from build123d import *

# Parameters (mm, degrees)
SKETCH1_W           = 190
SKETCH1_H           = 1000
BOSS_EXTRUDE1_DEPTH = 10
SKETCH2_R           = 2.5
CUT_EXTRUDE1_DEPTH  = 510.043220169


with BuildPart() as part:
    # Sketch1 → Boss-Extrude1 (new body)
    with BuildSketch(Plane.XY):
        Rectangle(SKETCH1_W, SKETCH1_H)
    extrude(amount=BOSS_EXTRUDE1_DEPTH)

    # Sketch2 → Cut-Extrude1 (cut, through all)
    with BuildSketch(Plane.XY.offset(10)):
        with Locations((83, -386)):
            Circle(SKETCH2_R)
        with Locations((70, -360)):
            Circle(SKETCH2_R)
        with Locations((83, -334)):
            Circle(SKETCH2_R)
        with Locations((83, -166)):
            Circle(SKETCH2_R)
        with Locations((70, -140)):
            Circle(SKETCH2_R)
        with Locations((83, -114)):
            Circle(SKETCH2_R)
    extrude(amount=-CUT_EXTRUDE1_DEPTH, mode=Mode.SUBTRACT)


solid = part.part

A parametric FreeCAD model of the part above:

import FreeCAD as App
import Part
import Sketcher
from FreeCAD import Vector
Q = App.Units.Quantity

doc = App.newDocument("Part")
params = doc.addObject("Spreadsheet::Sheet", "Params")
for row, (alias, value) in enumerate([
    ("sketch1_width", "190 mm"),
    ("sketch1_height", "1000 mm"),
    ("pad1_length", "10 mm"),
    ("sketch2_diameter", "5 mm"),
], start=1):
    params.set(f"A{row}", alias)
    params.set(f"B{row}", "=" + value)
    params.setAlias(f"B{row}", alias)

body = doc.addObject("PartDesign::Body", "Body")

# Sketch on XY plane
sketch1 = doc.addObject("Sketcher::SketchObject", "Sketch")
body.addObject(sketch1)
sketch1.AttachmentSupport = (doc.XY_Plane, [""])
sketch1.MapMode = "FlatFace"
sketch1.addGeometry(Part.LineSegment(Vector(-95, 500, 0), Vector(-95, -500, 0)), False)
sketch1.addGeometry(Part.LineSegment(Vector(-95, -500, 0), Vector(95, -500, 0)), False)
sketch1.addGeometry(Part.LineSegment(Vector(95, -500, 0), Vector(95, 500, 0)), False)
sketch1.addGeometry(Part.LineSegment(Vector(95, 500, 0), Vector(-95, 500, 0)), False)
sketch1.addConstraint(Sketcher.Constraint("Coincident", 0, 2, 1, 1))
sketch1.addConstraint(Sketcher.Constraint("Coincident", 1, 2, 2, 1))
sketch1.addConstraint(Sketcher.Constraint("Coincident", 2, 2, 3, 1))
sketch1.addConstraint(Sketcher.Constraint("Coincident", 3, 2, 0, 1))
sketch1.addConstraint(Sketcher.Constraint("Vertical", 0))
sketch1.addConstraint(Sketcher.Constraint("Horizontal", 1))
sketch1.addConstraint(Sketcher.Constraint("Vertical", 2))
sketch1.addConstraint(Sketcher.Constraint("Horizontal", 3))
sketch1.addConstraint(Sketcher.Constraint("Symmetric", 0, 2, 2, 2, -1, 1))
sketch1.addConstraint(Sketcher.Constraint("DistanceX", 1, 1, 1, 2, Q("190 mm")))
sketch1.addConstraint(Sketcher.Constraint("DistanceY", 0, 2, 0, 1, Q("1000 mm")))
sketch1.setExpression("Constraints[9]", "Params.sketch1_width")
sketch1.setExpression("Constraints[10]", "Params.sketch1_height")
pad1 = doc.addObject("PartDesign::Pad", "Pad")
body.addObject(pad1)
pad1.Profile = sketch1
pad1.setExpression("Length", "Params.pad1_length")

# Sketch on XY plane
sketch2 = doc.addObject("Sketcher::SketchObject", "Sketch001")
body.addObject(sketch2)
sketch2.AttachmentSupport = (doc.XY_Plane, [""])
sketch2.MapMode = "FlatFace"
sketch2.AttachmentOffset = App.Placement(Vector(0, 0, 10), App.Rotation())
sketch2.addGeometry(Part.Circle(Vector(83, -386, 0), Vector(0, 0, 1), 2.5), False)
sketch2.addGeometry(Part.Circle(Vector(70, -360, 0), Vector(0, 0, 1), 2.5), False)
sketch2.addGeometry(Part.Circle(Vector(83, -334, 0), Vector(0, 0, 1), 2.5), False)
sketch2.addGeometry(Part.Circle(Vector(83, -166, 0), Vector(0, 0, 1), 2.5), False)
sketch2.addGeometry(Part.Circle(Vector(70, -140, 0), Vector(0, 0, 1), 2.5), False)
sketch2.addGeometry(Part.Circle(Vector(83, -114, 0), Vector(0, 0, 1), 2.5), False)
sketch2.addConstraint(Sketcher.Constraint("Equal", 0, 1))
sketch2.addConstraint(Sketcher.Constraint("Equal", 1, 2))
sketch2.addConstraint(Sketcher.Constraint("Equal", 2, 3))
sketch2.addConstraint(Sketcher.Constraint("Equal", 3, 4))
sketch2.addConstraint(Sketcher.Constraint("Equal", 4, 5))
sketch2.addConstraint(Sketcher.Constraint("Vertical", 0, 3, 2, 3))
sketch2.addConstraint(Sketcher.Constraint("Vertical", 2, 3, 3, 3))
sketch2.addConstraint(Sketcher.Constraint("Vertical", 1, 3, 4, 3))
sketch2.addConstraint(Sketcher.Constraint("Vertical", 3, 3, 5, 3))
sketch2.addConstraint(Sketcher.Constraint("Diameter", 0, Q("5 mm")))
sketch2.addConstraint(Sketcher.Constraint("DistanceX", -1, 1, 0, 3, Q("83 mm")))
sketch2.addConstraint(Sketcher.Constraint("DistanceY", 0, 3, -1, 1, Q("386 mm")))
sketch2.addConstraint(Sketcher.Constraint("DistanceX", -1, 1, 1, 3, Q("70 mm")))
sketch2.addConstraint(Sketcher.Constraint("DistanceY", 1, 3, -1, 1, Q("360 mm")))
sketch2.addConstraint(Sketcher.Constraint("DistanceY", 2, 3, -1, 1, Q("334 mm")))
sketch2.addConstraint(Sketcher.Constraint("DistanceY", 3, 3, -1, 1, Q("166 mm")))
sketch2.addConstraint(Sketcher.Constraint("DistanceY", 4, 3, -1, 1, Q("140 mm")))
sketch2.addConstraint(Sketcher.Constraint("DistanceY", 5, 3, -1, 1, Q("114 mm")))
sketch2.setExpression("Constraints[9]", "Params.sketch2_diameter")
pocket1 = doc.addObject("PartDesign::Pocket", "Pocket")
body.addObject(pocket1)
pocket1.Profile = sketch2
pocket1.Type = "ThroughAll"

doc.recompute()
